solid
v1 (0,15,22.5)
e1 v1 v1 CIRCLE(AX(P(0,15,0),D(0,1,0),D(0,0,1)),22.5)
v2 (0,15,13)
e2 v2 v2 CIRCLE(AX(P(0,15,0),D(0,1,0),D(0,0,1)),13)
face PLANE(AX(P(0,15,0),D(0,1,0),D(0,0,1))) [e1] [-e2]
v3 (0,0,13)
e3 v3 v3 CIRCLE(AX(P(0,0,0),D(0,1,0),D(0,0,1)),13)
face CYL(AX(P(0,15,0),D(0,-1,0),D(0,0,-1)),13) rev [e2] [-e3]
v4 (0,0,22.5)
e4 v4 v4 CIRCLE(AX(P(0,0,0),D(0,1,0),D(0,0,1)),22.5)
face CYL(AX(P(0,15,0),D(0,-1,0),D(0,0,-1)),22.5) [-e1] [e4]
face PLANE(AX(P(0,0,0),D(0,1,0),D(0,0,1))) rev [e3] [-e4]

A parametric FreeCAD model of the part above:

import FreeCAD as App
import Part
import Sketcher
Q = App.Units.Quantity

doc = App.newDocument("Part")
body = doc.addObject("PartDesign::Body", "Body")

# Sketch on XZ plane
sketch1 = doc.addObject("Sketcher::SketchObject", "Sketch")
body.addObject(sketch1)
sketch1.AttachmentSupport = (doc.XZ_Plane, [""])
sketch1.MapMode = "FlatFace"
sketch1.addGeometry([
    Part.Circle(App.Vector(0, 0, 0), App.Vector(0, 0, 1), 22),
    Part.Circle(App.Vector(0, 0, 0), App.Vector(0, 0, 1), 13),
], False)
sketch1.addConstraint([
    Sketcher.Constraint("Coincident", 0, 3, -1, 1),
    Sketcher.Constraint("Coincident", 1, 3, -1, 1),
    Sketcher.Constraint("Diameter", 0, Q("45 mm")),
    Sketcher.Constraint("Diameter", 1, Q("26 mm")),
])
pad1 = doc.addObject("PartDesign::Pad", "Pad")
body.addObject(pad1)
pad1.Profile = sketch1
pad1.Length = 15
pad1.Reversed = True

doc.recompute()
